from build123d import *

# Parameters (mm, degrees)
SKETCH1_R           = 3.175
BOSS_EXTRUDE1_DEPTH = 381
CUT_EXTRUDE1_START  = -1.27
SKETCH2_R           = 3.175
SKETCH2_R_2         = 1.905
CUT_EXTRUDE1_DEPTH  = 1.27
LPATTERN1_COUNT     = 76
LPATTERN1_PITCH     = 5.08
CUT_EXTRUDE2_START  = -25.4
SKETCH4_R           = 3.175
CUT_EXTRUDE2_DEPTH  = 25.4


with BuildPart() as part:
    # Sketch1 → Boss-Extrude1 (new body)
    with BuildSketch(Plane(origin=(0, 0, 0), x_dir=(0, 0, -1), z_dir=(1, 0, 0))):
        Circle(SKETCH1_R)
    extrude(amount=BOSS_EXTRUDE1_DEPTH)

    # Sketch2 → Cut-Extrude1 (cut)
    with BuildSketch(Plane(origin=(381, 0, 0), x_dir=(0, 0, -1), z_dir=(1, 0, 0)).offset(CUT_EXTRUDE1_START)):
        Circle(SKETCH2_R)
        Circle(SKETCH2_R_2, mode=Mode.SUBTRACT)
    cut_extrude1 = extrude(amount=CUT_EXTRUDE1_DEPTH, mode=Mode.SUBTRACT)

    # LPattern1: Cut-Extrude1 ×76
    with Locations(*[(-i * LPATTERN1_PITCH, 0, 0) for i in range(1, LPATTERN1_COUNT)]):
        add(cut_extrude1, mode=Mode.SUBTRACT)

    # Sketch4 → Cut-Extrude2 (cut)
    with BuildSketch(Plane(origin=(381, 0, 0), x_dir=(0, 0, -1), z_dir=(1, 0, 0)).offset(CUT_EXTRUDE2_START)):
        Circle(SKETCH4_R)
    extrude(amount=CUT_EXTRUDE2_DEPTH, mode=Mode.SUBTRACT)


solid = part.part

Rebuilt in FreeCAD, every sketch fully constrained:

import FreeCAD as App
import Part
import Sketcher

V = App.Vector
Q = App.Units.Quantity

doc = App.newDocument("Part")
body = doc.addObject("PartDesign::Body", "Body")

sketch1 = body.newObject("Sketcher::SketchObject", "Sketch")
sketch1.AttachmentSupport = (doc.getObject("YZ_Plane"), [""])
sketch1.MapMode = "FlatFace"
sketch1.addGeometry(Part.Circle(V(0, 0, 0), V(0, 0, 1), 3.175), False)
sketch1.addConstraint([
    Sketcher.Constraint("Coincident", 0, 3, -1, 1),
    Sketcher.Constraint("Diameter", 0, Q("0.25 in")),
])
pad1 = body.newObject("PartDesign::Pad", "Pad")
pad1.Profile = sketch1
pad1.Length = Q("15 in")

sketch2 = body.newObject("Sketcher::SketchObject", "Sketch001")
sketch2.AttachmentSupport = (doc.getObject("YZ_Plane"), [""])
sketch2.MapMode = "FlatFace"
sketch2.AttachmentOffset = App.Placement(V(0, 0, 14.95 * 25.4), App.Rotation())
sketch2.addGeometry([
    Part.Circle(V(0, 0, 0), V(0, 0, 1), 3.175),
    Part.Circle(V(0, 0, 0), V(0, 0, 1), 1.905),
], False)
sketch2.addConstraint([
    Sketcher.Constraint("Coincident", 0, 3, -1, 1),
    Sketcher.Constraint("Coincident", 1, 3, -1, 1),
    Sketcher.Constraint("Diameter", 0, Q("0.25 in")),
    Sketcher.Constraint("Diameter", 1, Q("0.15 in")),
])
pocket1 = body.newObject("PartDesign::Pocket", "Pocket")
pocket1.Profile = sketch2
pocket1.Length = Q("0.05 in")
pocket1.Reversed = True
doc.recompute()

linearpattern = body.newObject("PartDesign::LinearPattern", "LinearPattern")
linearpattern.Originals = [pocket1]
linearpattern.Direction = (doc.getObject("X_Axis"), [""])
linearpattern.Mode = "offset"
linearpattern.Offset = Q("0.2 in")
linearpattern.Occurrences = 76
linearpattern.Reversed = True
body.Tip = linearpattern

sketch3 = body.newObject("Sketcher::SketchObject", "Sketch002")
sketch3.AttachmentSupport = (doc.getObject("YZ_Plane"), [""])
sketch3.MapMode = "FlatFace"
sketch3.AttachmentOffset = App.Placement(V(0, 0, 14 * 25.4), App.Rotation())
sketch3.addGeometry(Part.Circle(V(0, 0, 0), V(0, 0, 1), 3.175), False)
sketch3.addConstraint([
    Sketcher.Constraint("Coincident", 0, 3, -1, 1),
    Sketcher.Constraint("Diameter", 0, Q("0.25 in")),
])
pocket2 = body.newObject("PartDesign::Pocket", "Pocket001")
pocket2.Profile = sketch3
pocket2.Length = Q("1 in")
pocket2.Reversed = True

doc.recompute()
